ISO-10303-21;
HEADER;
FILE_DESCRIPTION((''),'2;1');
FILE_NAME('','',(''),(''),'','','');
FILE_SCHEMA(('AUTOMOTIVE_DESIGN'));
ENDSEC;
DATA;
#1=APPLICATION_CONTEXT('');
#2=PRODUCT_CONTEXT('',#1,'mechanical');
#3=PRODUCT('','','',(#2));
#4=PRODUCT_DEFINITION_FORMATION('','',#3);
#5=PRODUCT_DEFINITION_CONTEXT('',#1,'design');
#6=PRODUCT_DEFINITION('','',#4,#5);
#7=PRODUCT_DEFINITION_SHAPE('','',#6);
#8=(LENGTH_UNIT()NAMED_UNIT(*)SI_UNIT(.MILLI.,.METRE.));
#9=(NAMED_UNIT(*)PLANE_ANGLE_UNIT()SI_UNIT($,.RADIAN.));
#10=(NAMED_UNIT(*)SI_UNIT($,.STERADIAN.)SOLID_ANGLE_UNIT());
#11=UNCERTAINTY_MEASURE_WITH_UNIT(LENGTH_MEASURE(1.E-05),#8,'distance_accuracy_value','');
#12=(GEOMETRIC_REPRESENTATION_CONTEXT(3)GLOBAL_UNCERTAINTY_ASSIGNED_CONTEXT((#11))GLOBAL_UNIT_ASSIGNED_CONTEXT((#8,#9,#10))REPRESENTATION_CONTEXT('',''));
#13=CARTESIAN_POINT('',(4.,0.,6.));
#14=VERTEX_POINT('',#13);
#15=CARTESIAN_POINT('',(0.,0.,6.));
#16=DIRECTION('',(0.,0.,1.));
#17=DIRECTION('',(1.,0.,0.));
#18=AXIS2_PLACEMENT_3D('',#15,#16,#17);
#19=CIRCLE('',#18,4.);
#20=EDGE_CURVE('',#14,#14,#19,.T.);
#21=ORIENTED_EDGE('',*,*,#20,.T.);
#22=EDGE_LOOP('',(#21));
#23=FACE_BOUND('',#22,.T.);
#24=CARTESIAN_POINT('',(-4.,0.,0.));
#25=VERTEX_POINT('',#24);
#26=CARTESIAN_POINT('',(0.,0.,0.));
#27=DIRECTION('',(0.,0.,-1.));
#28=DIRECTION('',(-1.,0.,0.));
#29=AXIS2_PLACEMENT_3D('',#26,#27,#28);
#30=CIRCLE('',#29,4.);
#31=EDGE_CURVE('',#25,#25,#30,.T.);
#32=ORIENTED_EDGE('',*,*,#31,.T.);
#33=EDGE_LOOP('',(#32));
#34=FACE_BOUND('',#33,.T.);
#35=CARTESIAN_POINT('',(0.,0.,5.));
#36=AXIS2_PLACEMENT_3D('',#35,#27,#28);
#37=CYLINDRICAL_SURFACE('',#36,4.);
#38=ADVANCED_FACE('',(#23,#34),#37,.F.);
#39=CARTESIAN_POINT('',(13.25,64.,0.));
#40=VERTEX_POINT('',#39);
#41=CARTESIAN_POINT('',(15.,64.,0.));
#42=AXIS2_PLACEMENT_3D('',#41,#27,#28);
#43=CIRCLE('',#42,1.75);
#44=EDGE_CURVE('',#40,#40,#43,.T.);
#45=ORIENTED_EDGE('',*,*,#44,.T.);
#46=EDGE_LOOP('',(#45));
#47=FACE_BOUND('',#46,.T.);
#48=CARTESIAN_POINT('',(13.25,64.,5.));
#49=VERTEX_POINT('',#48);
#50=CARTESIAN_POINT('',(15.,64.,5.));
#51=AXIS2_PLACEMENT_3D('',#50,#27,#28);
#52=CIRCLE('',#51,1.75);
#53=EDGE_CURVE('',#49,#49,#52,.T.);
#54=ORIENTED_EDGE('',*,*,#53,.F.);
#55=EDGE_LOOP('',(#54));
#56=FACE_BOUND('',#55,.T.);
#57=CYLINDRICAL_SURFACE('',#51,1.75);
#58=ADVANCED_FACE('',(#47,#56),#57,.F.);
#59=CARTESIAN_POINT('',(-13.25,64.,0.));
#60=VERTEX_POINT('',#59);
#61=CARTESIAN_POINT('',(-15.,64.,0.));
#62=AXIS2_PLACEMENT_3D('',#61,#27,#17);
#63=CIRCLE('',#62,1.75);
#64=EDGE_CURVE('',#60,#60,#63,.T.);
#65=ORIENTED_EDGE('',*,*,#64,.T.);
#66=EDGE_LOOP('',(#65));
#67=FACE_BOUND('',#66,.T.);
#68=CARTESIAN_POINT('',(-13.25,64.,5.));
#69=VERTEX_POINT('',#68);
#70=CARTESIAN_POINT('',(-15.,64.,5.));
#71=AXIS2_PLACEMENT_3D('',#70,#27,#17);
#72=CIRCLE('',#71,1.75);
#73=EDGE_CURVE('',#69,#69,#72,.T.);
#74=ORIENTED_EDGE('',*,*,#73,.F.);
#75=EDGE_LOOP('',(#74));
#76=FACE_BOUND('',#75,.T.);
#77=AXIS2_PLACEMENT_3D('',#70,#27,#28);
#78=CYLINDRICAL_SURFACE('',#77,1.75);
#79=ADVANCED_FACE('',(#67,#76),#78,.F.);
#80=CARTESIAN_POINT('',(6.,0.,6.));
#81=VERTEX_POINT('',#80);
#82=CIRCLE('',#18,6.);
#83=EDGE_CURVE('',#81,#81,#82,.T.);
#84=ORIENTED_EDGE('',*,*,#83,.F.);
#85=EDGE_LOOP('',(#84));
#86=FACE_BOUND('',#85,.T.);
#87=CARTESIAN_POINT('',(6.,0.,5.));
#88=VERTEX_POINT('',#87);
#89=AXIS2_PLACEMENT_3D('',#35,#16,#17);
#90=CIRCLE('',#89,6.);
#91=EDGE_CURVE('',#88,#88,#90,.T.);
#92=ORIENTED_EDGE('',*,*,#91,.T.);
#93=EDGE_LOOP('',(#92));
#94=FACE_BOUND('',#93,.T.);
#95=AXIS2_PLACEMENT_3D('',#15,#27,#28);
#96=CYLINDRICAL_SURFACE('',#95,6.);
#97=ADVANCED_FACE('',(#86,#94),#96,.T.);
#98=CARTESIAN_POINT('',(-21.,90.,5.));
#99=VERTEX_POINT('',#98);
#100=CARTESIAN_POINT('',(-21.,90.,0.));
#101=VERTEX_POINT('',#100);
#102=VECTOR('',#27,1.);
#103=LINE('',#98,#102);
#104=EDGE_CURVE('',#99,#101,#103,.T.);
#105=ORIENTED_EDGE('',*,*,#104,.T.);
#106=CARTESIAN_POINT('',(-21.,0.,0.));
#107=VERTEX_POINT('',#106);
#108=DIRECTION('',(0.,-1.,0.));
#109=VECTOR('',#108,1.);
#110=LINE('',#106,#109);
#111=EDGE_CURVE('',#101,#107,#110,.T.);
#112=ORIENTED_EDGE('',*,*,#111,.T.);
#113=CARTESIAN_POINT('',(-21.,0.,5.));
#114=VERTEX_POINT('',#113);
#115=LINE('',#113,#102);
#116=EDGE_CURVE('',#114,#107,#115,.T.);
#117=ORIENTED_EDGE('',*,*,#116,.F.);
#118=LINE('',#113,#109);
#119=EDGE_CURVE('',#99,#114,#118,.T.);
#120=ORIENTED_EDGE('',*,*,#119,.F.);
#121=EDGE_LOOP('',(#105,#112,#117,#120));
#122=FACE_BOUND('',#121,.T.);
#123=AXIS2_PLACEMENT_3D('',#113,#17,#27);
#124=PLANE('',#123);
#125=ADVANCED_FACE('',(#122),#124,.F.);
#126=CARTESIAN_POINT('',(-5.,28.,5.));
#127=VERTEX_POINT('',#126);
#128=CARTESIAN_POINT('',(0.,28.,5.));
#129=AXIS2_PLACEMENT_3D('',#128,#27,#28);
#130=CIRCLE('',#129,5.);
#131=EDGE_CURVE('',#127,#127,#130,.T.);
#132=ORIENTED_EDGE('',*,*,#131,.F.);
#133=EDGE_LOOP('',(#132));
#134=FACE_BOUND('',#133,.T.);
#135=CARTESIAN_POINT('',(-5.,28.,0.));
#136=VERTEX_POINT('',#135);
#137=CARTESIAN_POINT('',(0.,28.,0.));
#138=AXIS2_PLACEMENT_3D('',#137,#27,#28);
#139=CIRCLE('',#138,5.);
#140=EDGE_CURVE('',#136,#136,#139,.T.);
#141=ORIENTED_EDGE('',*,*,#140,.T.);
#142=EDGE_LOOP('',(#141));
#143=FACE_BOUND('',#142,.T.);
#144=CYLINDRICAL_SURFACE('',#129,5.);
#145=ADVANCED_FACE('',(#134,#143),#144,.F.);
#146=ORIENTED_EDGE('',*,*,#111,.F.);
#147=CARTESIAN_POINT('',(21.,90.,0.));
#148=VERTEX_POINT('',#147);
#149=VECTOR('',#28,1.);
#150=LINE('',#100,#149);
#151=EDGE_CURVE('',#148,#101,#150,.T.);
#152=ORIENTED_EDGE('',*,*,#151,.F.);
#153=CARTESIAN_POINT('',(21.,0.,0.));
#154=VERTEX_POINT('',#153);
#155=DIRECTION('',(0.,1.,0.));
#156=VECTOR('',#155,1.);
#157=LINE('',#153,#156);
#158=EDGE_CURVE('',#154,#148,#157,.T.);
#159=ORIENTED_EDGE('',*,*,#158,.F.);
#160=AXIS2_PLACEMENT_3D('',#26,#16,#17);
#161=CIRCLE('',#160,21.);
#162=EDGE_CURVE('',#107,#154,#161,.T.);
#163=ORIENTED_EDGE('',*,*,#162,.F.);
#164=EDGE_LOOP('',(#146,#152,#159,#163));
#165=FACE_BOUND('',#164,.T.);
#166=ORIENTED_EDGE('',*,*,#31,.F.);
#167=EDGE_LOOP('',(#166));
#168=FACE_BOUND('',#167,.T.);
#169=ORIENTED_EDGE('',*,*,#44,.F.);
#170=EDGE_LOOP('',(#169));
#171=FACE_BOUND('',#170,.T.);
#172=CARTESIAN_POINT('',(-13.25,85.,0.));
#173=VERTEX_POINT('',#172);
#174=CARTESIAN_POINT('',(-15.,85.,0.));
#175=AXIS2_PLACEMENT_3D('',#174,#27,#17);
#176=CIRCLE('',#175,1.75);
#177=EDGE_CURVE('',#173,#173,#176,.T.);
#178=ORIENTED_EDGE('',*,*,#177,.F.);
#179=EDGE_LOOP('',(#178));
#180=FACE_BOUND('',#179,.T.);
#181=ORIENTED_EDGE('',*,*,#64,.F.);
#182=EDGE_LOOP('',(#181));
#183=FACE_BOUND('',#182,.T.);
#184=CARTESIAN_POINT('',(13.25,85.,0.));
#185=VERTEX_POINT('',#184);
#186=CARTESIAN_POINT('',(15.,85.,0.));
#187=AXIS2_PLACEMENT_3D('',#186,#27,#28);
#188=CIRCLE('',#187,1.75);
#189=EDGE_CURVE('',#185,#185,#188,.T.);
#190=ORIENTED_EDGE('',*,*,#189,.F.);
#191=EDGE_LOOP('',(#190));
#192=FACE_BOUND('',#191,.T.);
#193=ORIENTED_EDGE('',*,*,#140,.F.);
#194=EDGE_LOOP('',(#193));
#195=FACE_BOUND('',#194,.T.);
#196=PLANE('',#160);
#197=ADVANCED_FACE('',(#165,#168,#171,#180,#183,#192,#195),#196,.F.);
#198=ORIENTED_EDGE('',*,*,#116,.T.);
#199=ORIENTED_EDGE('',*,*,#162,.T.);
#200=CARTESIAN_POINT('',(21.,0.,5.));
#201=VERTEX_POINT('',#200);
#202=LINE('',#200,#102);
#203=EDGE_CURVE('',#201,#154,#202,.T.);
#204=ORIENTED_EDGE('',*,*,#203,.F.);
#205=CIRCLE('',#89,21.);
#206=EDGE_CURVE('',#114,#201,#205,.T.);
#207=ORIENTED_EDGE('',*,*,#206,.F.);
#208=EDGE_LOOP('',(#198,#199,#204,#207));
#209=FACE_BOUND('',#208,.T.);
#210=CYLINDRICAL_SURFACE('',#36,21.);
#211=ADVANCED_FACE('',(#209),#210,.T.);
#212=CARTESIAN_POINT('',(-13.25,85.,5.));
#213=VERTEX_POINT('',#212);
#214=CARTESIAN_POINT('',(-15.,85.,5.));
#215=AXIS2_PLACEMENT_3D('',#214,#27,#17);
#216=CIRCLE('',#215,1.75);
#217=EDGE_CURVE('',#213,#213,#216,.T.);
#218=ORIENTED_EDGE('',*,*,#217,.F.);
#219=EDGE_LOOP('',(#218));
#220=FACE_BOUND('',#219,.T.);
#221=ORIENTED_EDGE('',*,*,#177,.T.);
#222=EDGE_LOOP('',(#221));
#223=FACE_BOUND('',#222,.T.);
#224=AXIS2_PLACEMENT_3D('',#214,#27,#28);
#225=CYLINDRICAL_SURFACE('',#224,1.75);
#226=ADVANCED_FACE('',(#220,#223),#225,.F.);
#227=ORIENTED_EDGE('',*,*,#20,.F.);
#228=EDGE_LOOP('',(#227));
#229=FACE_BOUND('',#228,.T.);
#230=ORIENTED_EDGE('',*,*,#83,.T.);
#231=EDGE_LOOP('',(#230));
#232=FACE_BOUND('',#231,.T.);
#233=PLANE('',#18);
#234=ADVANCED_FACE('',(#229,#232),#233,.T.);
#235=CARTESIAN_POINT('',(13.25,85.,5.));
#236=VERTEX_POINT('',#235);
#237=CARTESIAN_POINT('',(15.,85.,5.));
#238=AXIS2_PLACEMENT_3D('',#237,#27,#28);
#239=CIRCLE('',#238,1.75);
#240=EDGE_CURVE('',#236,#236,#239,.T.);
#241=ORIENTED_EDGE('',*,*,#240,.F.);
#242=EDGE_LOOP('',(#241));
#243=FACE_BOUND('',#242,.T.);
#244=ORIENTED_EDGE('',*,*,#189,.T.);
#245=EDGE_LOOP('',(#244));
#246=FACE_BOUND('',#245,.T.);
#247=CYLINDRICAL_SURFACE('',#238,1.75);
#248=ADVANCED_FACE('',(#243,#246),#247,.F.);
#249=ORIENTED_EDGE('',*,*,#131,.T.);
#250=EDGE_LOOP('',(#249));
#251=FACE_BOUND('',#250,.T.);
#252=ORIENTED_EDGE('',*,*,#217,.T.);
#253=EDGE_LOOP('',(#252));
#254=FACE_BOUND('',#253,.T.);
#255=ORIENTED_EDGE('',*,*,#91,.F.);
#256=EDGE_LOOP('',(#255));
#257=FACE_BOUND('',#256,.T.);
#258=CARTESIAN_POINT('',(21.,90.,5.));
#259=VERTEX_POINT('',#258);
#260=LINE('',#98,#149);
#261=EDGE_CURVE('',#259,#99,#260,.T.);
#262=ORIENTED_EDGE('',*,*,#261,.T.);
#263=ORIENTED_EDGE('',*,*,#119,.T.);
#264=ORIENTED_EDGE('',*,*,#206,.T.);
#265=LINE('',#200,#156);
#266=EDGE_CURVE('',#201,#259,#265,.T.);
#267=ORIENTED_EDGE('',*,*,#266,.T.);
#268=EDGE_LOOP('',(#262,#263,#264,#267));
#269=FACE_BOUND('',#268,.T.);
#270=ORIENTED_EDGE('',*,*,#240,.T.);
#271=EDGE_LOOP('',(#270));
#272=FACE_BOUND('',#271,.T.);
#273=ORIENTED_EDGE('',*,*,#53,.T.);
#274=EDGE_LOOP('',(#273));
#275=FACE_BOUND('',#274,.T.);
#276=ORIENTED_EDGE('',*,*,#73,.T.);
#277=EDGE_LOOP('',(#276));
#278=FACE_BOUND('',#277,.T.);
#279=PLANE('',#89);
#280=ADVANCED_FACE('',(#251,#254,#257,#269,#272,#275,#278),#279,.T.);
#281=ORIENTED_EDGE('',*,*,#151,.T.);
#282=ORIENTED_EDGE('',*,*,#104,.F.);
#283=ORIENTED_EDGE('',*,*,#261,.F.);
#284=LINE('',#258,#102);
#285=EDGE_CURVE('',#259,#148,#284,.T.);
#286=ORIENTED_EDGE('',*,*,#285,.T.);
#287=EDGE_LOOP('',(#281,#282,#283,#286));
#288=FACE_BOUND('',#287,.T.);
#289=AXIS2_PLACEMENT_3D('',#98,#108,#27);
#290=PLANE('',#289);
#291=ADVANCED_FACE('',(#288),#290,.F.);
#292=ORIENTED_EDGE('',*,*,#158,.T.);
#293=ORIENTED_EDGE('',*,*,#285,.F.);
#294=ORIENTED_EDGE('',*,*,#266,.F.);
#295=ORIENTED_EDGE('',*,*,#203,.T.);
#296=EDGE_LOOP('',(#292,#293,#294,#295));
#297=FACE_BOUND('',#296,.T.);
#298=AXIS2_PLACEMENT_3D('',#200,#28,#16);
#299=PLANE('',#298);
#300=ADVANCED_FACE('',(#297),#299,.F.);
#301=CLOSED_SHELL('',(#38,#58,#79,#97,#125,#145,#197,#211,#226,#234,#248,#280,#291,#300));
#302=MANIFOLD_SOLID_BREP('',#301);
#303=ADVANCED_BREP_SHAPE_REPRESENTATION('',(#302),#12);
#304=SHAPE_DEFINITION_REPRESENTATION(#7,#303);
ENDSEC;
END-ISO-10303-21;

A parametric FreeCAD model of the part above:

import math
import FreeCAD as App
import Part
import Sketcher
Q = App.Units.Quantity

doc = App.newDocument("Part")
body = doc.addObject("PartDesign::Body", "Body")

# Sketch on XY plane
sketch1 = body.newObject("Sketcher::SketchObject", "Sketch")
sketch1.AttachmentSupport = (doc.getObject("XY_Plane"), [""])
sketch1.MapMode = "FlatFace"
sketch1.addGeometry([
    Part.LineSegment(App.Vector(-21, 90, 0), App.Vector(-21, 0, 0)),
    Part.ArcOfCircle(Part.Circle(App.Vector(0, 0, 0), App.Vector(0, 0, 1), 21), math.radians(180), math.radians(360)),
    Part.LineSegment(App.Vector(21, 0, 0), App.Vector(21, 90, 0)),
    Part.LineSegment(App.Vector(21, 90, 0), App.Vector(-21, 90, 0)),
], False)
sketch1.addConstraint([
    Sketcher.Constraint("Tangent", 0, 2, 1, 1),
    Sketcher.Constraint("Tangent", 1, 2, 2, 1),
    Sketcher.Constraint("Coincident", 2, 2, 3, 1),
    Sketcher.Constraint("Coincident", 3, 2, 0, 1),
    Sketcher.Constraint("Vertical", 0),
    Sketcher.Constraint("Vertical", 2),
    Sketcher.Constraint("Horizontal", 3),
    Sketcher.Constraint("Coincident", 1, 3, -1, 1),
    Sketcher.Constraint("Radius", 1, Q("21 mm")),
    Sketcher.Constraint("DistanceY", 0, 2, 0, 1, Q("90 mm")),
])
pad1 = body.newObject("PartDesign::Pad", "Pad")
pad1.Profile = sketch1
pad1.Length = 5

# Sketch on XY plane
sketch2 = body.newObject("Sketcher::SketchObject", "Sketch001")
sketch2.AttachmentSupport = (doc.getObject("XY_Plane"), [""])
sketch2.MapMode = "FlatFace"
sketch2.addGeometry([
    Part.Circle(App.Vector(15, 85, 0), App.Vector(0, 0, 1), 1.8),
    Part.Circle(App.Vector(15, 64, 0), App.Vector(0, 0, 1), 1.8),
    Part.Circle(App.Vector(-15, 64, 0), App.Vector(0, 0, 1), 1.8),
    Part.Circle(App.Vector(-15, 85, 0), App.Vector(0, 0, 1), 1.8),
], False)
sketch2.addConstraint([
    Sketcher.Constraint("Equal", 0, 1),
    Sketcher.Constraint("Equal", 1, 2),
    Sketcher.Constraint("Equal", 2, 3),
    Sketcher.Constraint("Symmetric", 1, 3, 2, 3, -2),
    Sketcher.Constraint("Symmetric", 0, 3, 3, 3, -2),
    Sketcher.Constraint("Vertical", 0, 3, 1, 3),
    Sketcher.Constraint("Diameter", 0, Q("3.5 mm")),
    Sketcher.Constraint("DistanceX", -1, 1, 0, 3, Q("15 mm")),
    Sketcher.Constraint("DistanceY", -1, 1, 0, 3, Q("85 mm")),
    Sketcher.Constraint("DistanceY", -1, 1, 1, 3, Q("64 mm")),
])
pocket1 = body.newObject("PartDesign::Pocket", "Pocket")
pocket1.Profile = sketch2
pocket1.Type = "ThroughAll"
pocket1.Reversed = True

# Sketch on XY plane
sketch3 = body.newObject("Sketcher::SketchObject", "Sketch002")
sketch3.AttachmentSupport = (doc.getObject("XY_Plane"), [""])
sketch3.MapMode = "FlatFace"
sketch3.addGeometry(Part.Circle(App.Vector(0, 0, 0), App.Vector(0, 0, 1), 4), False)
sketch3.addConstraint([
    Sketcher.Constraint("Coincident", 0, 3, -1, 1),
    Sketcher.Constraint("Diameter", 0, Q("8 mm")),
])
pocket2 = body.newObject("PartDesign::Pocket", "Pocket001")
pocket2.Profile = sketch3
pocket2.Type = "ThroughAll"
pocket2.Reversed = True

# Sketch on XY plane
sketch4 = body.newObject("Sketcher::SketchObject", "Sketch003")
sketch4.AttachmentSupport = (doc.getObject("XY_Plane"), [""])
sketch4.MapMode = "FlatFace"
sketch4.addGeometry(Part.Circle(App.Vector(0, 28, 0), App.Vector(0, 0, 1), 5), False)
sketch4.addConstraint([
    Sketcher.Constraint("PointOnObject", 0, 3, -2),
    Sketcher.Constraint("Diameter", 0, Q("10 mm")),
    Sketcher.Constraint("DistanceY", -1, 1, 0, 3, Q("28 mm")),
])
pocket3 = body.newObject("PartDesign::Pocket", "Pocket002")
pocket3.Profile = sketch4
pocket3.Type = "ThroughAll"
pocket3.Reversed = True

# Sketch on XY plane
sketch5 = body.newObject("Sketcher::SketchObject", "Sketch004")
sketch5.AttachmentSupport = (doc.getObject("XY_Plane"), [""])
sketch5.MapMode = "FlatFace"
sketch5.AttachmentOffset = App.Placement(App.Vector(0, 0, 5), App.Rotation())
sketch5.addGeometry([
    Part.Circle(App.Vector(0, 0, 0), App.Vector(0, 0, 1), 6),
    Part.Circle(App.Vector(0, 0, 0), App.Vector(0, 0, 1), 4),
], False)
sketch5.addConstraint([
    Sketcher.Constraint("Coincident", 0, 3, -1, 1),
    Sketcher.Constraint("Coincident", 1, 3, -1, 1),
    Sketcher.Constraint("Diameter", 0, Q("12 mm")),
    Sketcher.Constraint("Diameter", 1, Q("8 mm")),
])
pad2 = body.newObject("PartDesign::Pad", "Pad001")
pad2.Profile = sketch5
pad2.Length = 1

doc.recompute()
